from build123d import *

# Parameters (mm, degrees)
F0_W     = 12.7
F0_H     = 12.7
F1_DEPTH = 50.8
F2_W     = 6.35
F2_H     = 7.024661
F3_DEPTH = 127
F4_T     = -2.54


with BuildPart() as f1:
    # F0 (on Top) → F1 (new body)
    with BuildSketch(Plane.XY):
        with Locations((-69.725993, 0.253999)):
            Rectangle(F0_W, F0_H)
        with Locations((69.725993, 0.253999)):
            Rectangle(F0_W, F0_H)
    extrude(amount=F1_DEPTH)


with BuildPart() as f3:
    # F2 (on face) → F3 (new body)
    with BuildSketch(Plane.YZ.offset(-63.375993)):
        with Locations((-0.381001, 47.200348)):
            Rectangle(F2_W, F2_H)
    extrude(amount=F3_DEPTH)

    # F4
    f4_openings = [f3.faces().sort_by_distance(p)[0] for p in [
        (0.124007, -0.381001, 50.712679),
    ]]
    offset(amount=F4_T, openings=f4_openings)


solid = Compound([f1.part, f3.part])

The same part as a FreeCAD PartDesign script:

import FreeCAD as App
import Part
import Sketcher
from FreeCAD import Vector
Q = App.Units.Quantity


def faces_at(feature, points):
    """Names of the faces that lie closest to the given points."""
    faces = feature.Shape.Faces
    near = lambda p: min(range(len(faces)), key=lambda i: faces[i].distToShape(Part.Vertex(*p))[0])
    return sorted({f"Face{near(p) + 1}" for p in points})

doc = App.newDocument("Part")
body = doc.addObject("PartDesign::Body", "Body")
body.AllowCompound = True

# Sketch on XY plane
sketch1 = doc.addObject("Sketcher::SketchObject", "Sketch")
body.addObject(sketch1)
sketch1.AttachmentSupport = (doc.XY_Plane, [""])
sketch1.MapMode = "FlatFace"
sketch1.addGeometry([
    Part.LineSegment(Vector(-76, 7, 0), Vector(-76, -6, 0)),  # 0
    Part.LineSegment(Vector(-76, -6, 0), Vector(-63, -6, 0)),  # 1
    Part.LineSegment(Vector(-63, -6, 0), Vector(-63, 7, 0)),  # 2
    Part.LineSegment(Vector(-63, 7, 0), Vector(-76, 7, 0)),  # 3
    Part.LineSegment(Vector(63, 7, 0), Vector(63, -6, 0)),  # 4
    Part.LineSegment(Vector(63, -6, 0), Vector(76, -6, 0)),  # 5
    Part.LineSegment(Vector(76, -6, 0), Vector(76, 7, 0)),  # 6
    Part.LineSegment(Vector(76, 7, 0), Vector(63, 7, 0)),  # 7
], False)
sketch1.addConstraint([
    Sketcher.Constraint("Coincident", 0, 2, 1, 1),
    Sketcher.Constraint("Coincident", 1, 2, 2, 1),
    Sketcher.Constraint("Coincident", 2, 2, 3, 1),
    Sketcher.Constraint("Coincident", 3, 2, 0, 1),
    Sketcher.Constraint("Coincident", 4, 2, 5, 1),
    Sketcher.Constraint("Coincident", 5, 2, 6, 1),
    Sketcher.Constraint("Coincident", 6, 2, 7, 1),
    Sketcher.Constraint("Coincident", 7, 2, 4, 1),
    Sketcher.Constraint("Vertical", 0),
    Sketcher.Constraint("Horizontal", 1),
    Sketcher.Constraint("Vertical", 2),
    Sketcher.Constraint("Horizontal", 3),
    Sketcher.Constraint("Vertical", 4),
    Sketcher.Constraint("Horizontal", 5),
    Sketcher.Constraint("Vertical", 6),
    Sketcher.Constraint("Horizontal", 7),
    Sketcher.Constraint("Symmetric", 1, 2, 4, 2, -2),
    Sketcher.Constraint("Symmetric", 3, 2, 6, 2, -2),
    Sketcher.Constraint("Equal", 7, 0),
    Sketcher.Constraint("DistanceX", 1, 1, 1, 2, Q("0.5 in")),
    Sketcher.Constraint("DistanceY", 0, 2, -1, 1, Q("0.24 in")),
    Sketcher.Constraint("DistanceX", 0, 2, -1, 1, 76.075993),
])
pad1 = doc.addObject("PartDesign::Pad", "Pad")
body.addObject(pad1)
pad1.Profile = sketch1
pad1.Length = Q("2 in")
body2 = doc.addObject("PartDesign::Body", "Body001")

# Sketch on YZ plane
sketch2 = doc.addObject("Sketcher::SketchObject", "Sketch001")
body2.addObject(sketch2)
sketch2.AttachmentSupport = (doc.getObject("YZ_Plane001"), [""])
sketch2.MapMode = "FlatFace"
sketch2.AttachmentOffset = App.Placement(Vector(0, 0, -63.375993), App.Rotation())
sketch2.addGeometry([
    Part.LineSegment(Vector(-4, 51, 0), Vector(-4, 44, 0)),
    Part.LineSegment(Vector(-4, 44, 0), Vector(3, 44, 0)),
    Part.LineSegment(Vector(3, 44, 0), Vector(3, 51, 0)),
    Part.LineSegment(Vector(3, 51, 0), Vector(-4, 51, 0)),
], False)
sketch2.addConstraint([
    Sketcher.Constraint("Coincident", 0, 2, 1, 1),
    Sketcher.Constraint("Coincident", 1, 2, 2, 1),
    Sketcher.Constraint("Coincident", 2, 2, 3, 1),
    Sketcher.Constraint("Coincident", 3, 2, 0, 1),
    Sketcher.Constraint("Vertical", 0),
    Sketcher.Constraint("Horizontal", 1),
    Sketcher.Constraint("Vertical", 2),
    Sketcher.Constraint("Horizontal", 3),
    Sketcher.Constraint("DistanceX", 1, 1, 1, 2, Q("0.25 in")),
    Sketcher.Constraint("DistanceX", 0, 2, -1, 1, Q("0.14 in")),
    Sketcher.Constraint("DistanceY", 0, 2, 0, 1, 7.024661),
    Sketcher.Constraint("DistanceY", -1, 1, 2, 2, 50.712679),
])
pad2 = doc.addObject("PartDesign::Pad", "Pad001")
body2.addObject(pad2)
pad2.Profile = sketch2
pad2.Length = Q("5 in")
doc.recompute()

thickness = doc.addObject("PartDesign::Thickness", "Thickness")
body2.addObject(thickness)
thickness.Base = (pad2, faces_at(pad2, [(0.124, -0.381, 50.713)]))
thickness.Value = Q("0.1 in")
thickness.Reversed = True
thickness.Join = "Arc"

doc.recompute()
